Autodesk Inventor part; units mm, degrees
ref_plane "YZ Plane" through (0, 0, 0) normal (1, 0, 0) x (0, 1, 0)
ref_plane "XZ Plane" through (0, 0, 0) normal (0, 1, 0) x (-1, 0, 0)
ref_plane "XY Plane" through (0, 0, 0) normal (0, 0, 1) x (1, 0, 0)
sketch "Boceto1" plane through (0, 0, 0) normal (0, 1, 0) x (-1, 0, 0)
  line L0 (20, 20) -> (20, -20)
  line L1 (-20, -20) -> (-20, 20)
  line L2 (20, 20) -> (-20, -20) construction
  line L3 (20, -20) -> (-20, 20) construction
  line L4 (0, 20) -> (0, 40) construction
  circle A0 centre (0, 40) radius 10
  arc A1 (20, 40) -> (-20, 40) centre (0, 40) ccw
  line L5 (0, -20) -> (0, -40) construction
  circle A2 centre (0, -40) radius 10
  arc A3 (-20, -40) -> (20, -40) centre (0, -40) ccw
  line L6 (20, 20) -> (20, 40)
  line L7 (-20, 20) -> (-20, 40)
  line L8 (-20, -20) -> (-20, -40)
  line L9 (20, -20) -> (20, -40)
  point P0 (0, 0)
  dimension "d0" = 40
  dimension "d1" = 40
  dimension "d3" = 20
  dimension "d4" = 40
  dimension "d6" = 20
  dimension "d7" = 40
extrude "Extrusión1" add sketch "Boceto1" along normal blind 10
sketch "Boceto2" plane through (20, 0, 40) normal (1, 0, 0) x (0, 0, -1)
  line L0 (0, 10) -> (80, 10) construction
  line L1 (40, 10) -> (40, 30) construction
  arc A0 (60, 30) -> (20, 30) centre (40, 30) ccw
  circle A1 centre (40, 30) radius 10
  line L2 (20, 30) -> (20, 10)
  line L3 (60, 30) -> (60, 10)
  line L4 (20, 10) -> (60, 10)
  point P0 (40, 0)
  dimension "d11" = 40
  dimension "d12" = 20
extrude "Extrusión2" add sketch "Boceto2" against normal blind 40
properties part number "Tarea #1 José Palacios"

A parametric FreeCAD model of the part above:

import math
import FreeCAD as App
import Part
import Sketcher

V = App.Vector
Q = App.Units.Quantity

doc = App.newDocument("Part")
body = doc.addObject("PartDesign::Body", "Body")

sketch1 = doc.addObject("Sketcher::SketchObject", "Sketch")
body.addObject(sketch1)
sketch1.AttachmentSupport = (doc.XZ_Plane, [""])
sketch1.MapMode = "FlatFace"
sketch1.addGeometry([
    Part.LineSegment(V(-20, -40, 0), V(-20, 40, 0)),
    Part.ArcOfCircle(Part.Circle(V(0, 40, 0), V(0, 0, 1), 20), math.radians(0), math.radians(180)),
    Part.LineSegment(V(20, 40, 0), V(20, -40, 0)),
    Part.ArcOfCircle(Part.Circle(V(0, -40, 0), V(0, 0, 1), 20), math.radians(180), math.radians(360)),
    Part.Circle(V(0, -40, 0), V(0, 0, 1), 10),
    Part.Circle(V(0, 40, 0), V(0, 0, 1), 10),
], False)
sketch1.addConstraint([
    Sketcher.Constraint("Tangent", 0, 2, 1, 2),
    Sketcher.Constraint("Tangent", 1, 1, 2, 1),
    Sketcher.Constraint("Tangent", 2, 2, 3, 2),
    Sketcher.Constraint("Tangent", 3, 1, 0, 1),
    Sketcher.Constraint("Vertical", 0),
    Sketcher.Constraint("Vertical", 2),
    Sketcher.Constraint("Coincident", 4, 3, 3, 3),
    Sketcher.Constraint("Coincident", 5, 3, 1, 3),
    Sketcher.Constraint("Equal", 4, 5),
    Sketcher.Constraint("Symmetric", 1, 3, 3, 3, -1, 1),
    Sketcher.Constraint("Diameter", 4, Q("20 mm")),
    Sketcher.Constraint("Radius", 1, Q("20 mm")),
    Sketcher.Constraint("DistanceY", -1, 1, 1, 3, Q("40 mm")),
])
pad1 = doc.addObject("PartDesign::Pad", "Pad")
body.addObject(pad1)
pad1.Profile = sketch1
pad1.Length = 10
pad1.Reversed = True

sketch2 = doc.addObject("Sketcher::SketchObject", "Sketch001")
body.addObject(sketch2)
sketch2.AttachmentSupport = (doc.YZ_Plane, [""])
sketch2.MapMode = "FlatFace"
sketch2.AttachmentOffset = App.Placement(V(0, 0, 20), App.Rotation())
sketch2.addGeometry([
    Part.LineSegment(V(10, -20, 0), V(30, -20, 0)),
    Part.ArcOfCircle(Part.Circle(V(30, 0, 0), V(0, 0, 1), 20), math.radians(-90), math.radians(90)),
    Part.LineSegment(V(30, 20, 0), V(10, 20, 0)),
    Part.LineSegment(V(10, 20, 0), V(10, -20, 0)),
    Part.Circle(V(30, 0, 0), V(0, 0, 1), 10),
], False)
sketch2.addConstraint([
    Sketcher.Constraint("Tangent", 0, 2, 1, 1),
    Sketcher.Constraint("Tangent", 1, 2, 2, 1),
    Sketcher.Constraint("Coincident", 2, 2, 3, 1),
    Sketcher.Constraint("Coincident", 3, 2, 0, 1),
    Sketcher.Constraint("Horizontal", 0),
    Sketcher.Constraint("Horizontal", 2),
    Sketcher.Constraint("Vertical", 3),
    Sketcher.Constraint("Coincident", 4, 3, 1, 3),
    Sketcher.Constraint("PointOnObject", 1, 3, -1),
    Sketcher.Constraint("Diameter", 4, Q("20 mm")),
    Sketcher.Constraint("Radius", 1, Q("20 mm")),
    Sketcher.Constraint("DistanceX", 0, 1, 0, 2, Q("20 mm")),
    Sketcher.Constraint("DistanceX", -1, 1, 1, 3, Q("30 mm")),
])
pad2 = doc.addObject("PartDesign::Pad", "Pad001")
body.addObject(pad2)
pad2.Profile = sketch2
pad2.Length = 40
pad2.Reversed = True

doc.recompute()
